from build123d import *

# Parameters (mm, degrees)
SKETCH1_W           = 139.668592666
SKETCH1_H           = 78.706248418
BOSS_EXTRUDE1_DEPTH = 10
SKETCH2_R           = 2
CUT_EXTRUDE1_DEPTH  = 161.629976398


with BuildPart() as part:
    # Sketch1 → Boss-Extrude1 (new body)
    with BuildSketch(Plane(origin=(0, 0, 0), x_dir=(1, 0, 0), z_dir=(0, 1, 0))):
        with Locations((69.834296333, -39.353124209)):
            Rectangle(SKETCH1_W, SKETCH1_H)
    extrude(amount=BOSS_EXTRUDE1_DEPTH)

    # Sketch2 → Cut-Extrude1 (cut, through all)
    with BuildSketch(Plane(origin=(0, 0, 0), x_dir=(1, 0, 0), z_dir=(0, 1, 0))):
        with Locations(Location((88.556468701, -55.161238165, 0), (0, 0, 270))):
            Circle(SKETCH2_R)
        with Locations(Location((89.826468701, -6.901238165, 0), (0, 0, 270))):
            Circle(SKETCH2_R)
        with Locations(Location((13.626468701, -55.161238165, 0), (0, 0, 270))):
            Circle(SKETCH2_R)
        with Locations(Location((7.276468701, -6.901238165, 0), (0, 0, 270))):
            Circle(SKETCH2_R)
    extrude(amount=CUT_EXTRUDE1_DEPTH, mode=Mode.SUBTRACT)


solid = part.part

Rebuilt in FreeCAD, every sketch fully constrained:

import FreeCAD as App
import Part
import Sketcher
Q = App.Units.Quantity

doc = App.newDocument("Part")
body = doc.addObject("PartDesign::Body", "Body")

# Sketch on XZ plane
sketch1 = body.newObject("Sketcher::SketchObject", "Sketch")
sketch1.AttachmentSupport = (doc.getObject("XZ_Plane"), [""])
sketch1.MapMode = "FlatFace"
sketch1.addGeometry(Part.LineSegment(App.Vector(0, 0, 0), App.Vector(0, 79, 0)), False)
sketch1.addGeometry(Part.LineSegment(App.Vector(0, 79, 0), App.Vector(140, 79, 0)), False)
sketch1.addGeometry(Part.LineSegment(App.Vector(140, 79, 0), App.Vector(140, 0, 0)), False)
sketch1.addGeometry(Part.LineSegment(App.Vector(140, 0, 0), App.Vector(0, 0, 0)), False)
sketch1.addConstraint(Sketcher.Constraint("Coincident", 0, 2, 1, 1))
sketch1.addConstraint(Sketcher.Constraint("Coincident", 1, 2, 2, 1))
sketch1.addConstraint(Sketcher.Constraint("Coincident", 2, 2, 3, 1))
sketch1.addConstraint(Sketcher.Constraint("Coincident", 3, 2, 0, 1))
sketch1.addConstraint(Sketcher.Constraint("Vertical", 0))
sketch1.addConstraint(Sketcher.Constraint("Horizontal", 1))
sketch1.addConstraint(Sketcher.Constraint("Vertical", 2))
sketch1.addConstraint(Sketcher.Constraint("Horizontal", 3))
sketch1.addConstraint(Sketcher.Constraint("Coincident", 3, 2, -1, 1))
sketch1.addConstraint(Sketcher.Constraint("DistanceY", 0, 1, 0, 2, Q("78.706248 mm")))
sketch1.addConstraint(Sketcher.Constraint("DistanceX", 1, 1, 1, 2, Q("139.668593 mm")))
pad1 = body.newObject("PartDesign::Pad", "Pad")
pad1.Profile = sketch1
pad1.Length = 10
pad1.Reversed = True

# Sketch on XZ plane
sketch2 = body.newObject("Sketcher::SketchObject", "Sketch001")
sketch2.AttachmentSupport = (doc.getObject("XZ_Plane"), [""])
sketch2.MapMode = "FlatFace"
sketch2.addGeometry(Part.Circle(App.Vector(88.6, 55.2, 0), App.Vector(0, 0, 1), 2), False)
sketch2.addGeometry(Part.Circle(App.Vector(89.8, 6.9, 0), App.Vector(0, 0, 1), 2), False)
sketch2.addGeometry(Part.Circle(App.Vector(13.6, 55.2, 0), App.Vector(0, 0, 1), 2), False)
sketch2.addGeometry(Part.Circle(App.Vector(7.3, 6.9, 0), App.Vector(0, 0, 1), 2), False)
sketch2.addConstraint(Sketcher.Constraint("Equal", 0, 1))
sketch2.addConstraint(Sketcher.Constraint("Equal", 1, 2))
sketch2.addConstraint(Sketcher.Constraint("Equal", 2, 3))
sketch2.addConstraint(Sketcher.Constraint("Horizontal", 0, 3, 2, 3))
sketch2.addConstraint(Sketcher.Constraint("Horizontal", 1, 3, 3, 3))
sketch2.addConstraint(Sketcher.Constraint("Diameter", 0, Q("4 mm")))
sketch2.addConstraint(Sketcher.Constraint("DistanceX", 2, 3, 1, 3, Q("76.2 mm")))
sketch2.addConstraint(Sketcher.Constraint("DistanceX", 0, 3, 1, 3, Q("1.27 mm")))
sketch2.addConstraint(Sketcher.Constraint("DistanceY", 1, 3, 0, 3, Q("48.26 mm")))
sketch2.addConstraint(Sketcher.Constraint("DistanceX", 3, 3, 2, 3, Q("6.35 mm")))
sketch2.addConstraint(Sketcher.Constraint("DistanceX", -1, 1, 0, 3, Q("88.556469 mm")))
sketch2.addConstraint(Sketcher.Constraint("DistanceY", -1, 1, 0, 3, Q("55.161238 mm")))
pocket1 = body.newObject("PartDesign::Pocket", "Pocket")
pocket1.Profile = sketch2
pocket1.Type = "ThroughAll"

doc.recompute()
